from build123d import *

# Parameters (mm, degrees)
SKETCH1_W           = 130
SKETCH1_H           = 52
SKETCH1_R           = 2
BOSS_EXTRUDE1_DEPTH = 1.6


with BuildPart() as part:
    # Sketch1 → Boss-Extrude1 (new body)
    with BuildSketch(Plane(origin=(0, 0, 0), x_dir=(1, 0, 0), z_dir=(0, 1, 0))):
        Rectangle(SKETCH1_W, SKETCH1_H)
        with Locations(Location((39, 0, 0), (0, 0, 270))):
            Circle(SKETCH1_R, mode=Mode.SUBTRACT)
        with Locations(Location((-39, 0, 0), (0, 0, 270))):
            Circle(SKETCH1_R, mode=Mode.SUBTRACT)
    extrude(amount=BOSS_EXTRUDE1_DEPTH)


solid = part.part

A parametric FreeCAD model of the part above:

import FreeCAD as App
import Part
import Sketcher

V = App.Vector

doc = App.newDocument("Part")
body = doc.addObject("PartDesign::Body", "Body")

# Sketch on XZ plane
sketch1 = body.newObject("Sketcher::SketchObject", "Sketch")
sketch1.AttachmentSupport = (doc.getObject("XZ_Plane"), [""])
sketch1.MapMode = "FlatFace"
sketch1.addGeometry(Part.LineSegment(V(-65, -26, 0), V(-65, 26, 0)), False)
sketch1.addGeometry(Part.LineSegment(V(-65, 26, 0), V(65, 26, 0)), False)
sketch1.addGeometry(Part.LineSegment(V(65, 26, 0), V(65, -26, 0)), False)
sketch1.addGeometry(Part.LineSegment(V(65, -26, 0), V(-65, -26, 0)), False)
sketch1.addGeometry(Part.Circle(V(-39, 0, 0), V(0, 0, 1), 2), False)
sketch1.addGeometry(Part.Circle(V(39, 0, 0), V(0, 0, 1), 2), False)
sketch1.addConstraint(Sketcher.Constraint("Coincident", 0, 2, 1, 1))
sketch1.addConstraint(Sketcher.Constraint("Coincident", 1, 2, 2, 1))
sketch1.addConstraint(Sketcher.Constraint("Coincident", 2, 2, 3, 1))
sketch1.addConstraint(Sketcher.Constraint("Coincident", 3, 2, 0, 1))
sketch1.addConstraint(Sketcher.Constraint("Vertical", 0))
sketch1.addConstraint(Sketcher.Constraint("Horizontal", 1))
sketch1.addConstraint(Sketcher.Constraint("Vertical", 2))
sketch1.addConstraint(Sketcher.Constraint("Horizontal", 3))
sketch1.addConstraint(Sketcher.Constraint("Equal", 4, 5))
sketch1.addConstraint(Sketcher.Constraint("Symmetric", 4, 3, 5, 3, -1, 1))
sketch1.addConstraint(Sketcher.Constraint("Symmetric", 0, 2, 2, 2, -1, 1))
sketch1.addConstraint(Sketcher.Constraint("PointOnObject", 4, 3, -1))
sketch1.addConstraint(Sketcher.Constraint("Diameter", 4, 4.0))
sketch1.addConstraint(Sketcher.Constraint("DistanceX", 1, 1, 1, 2, 130.0))
sketch1.addConstraint(Sketcher.Constraint("DistanceY", 0, 1, 0, 2, 52.0))
sketch1.addConstraint(Sketcher.Constraint("DistanceX", 4, 3, -1, 1, 39.0))
pad1 = body.newObject("PartDesign::Pad", "Pad")
pad1.Profile = sketch1
pad1.Length = 1.6
pad1.Reversed = True

doc.recompute()
